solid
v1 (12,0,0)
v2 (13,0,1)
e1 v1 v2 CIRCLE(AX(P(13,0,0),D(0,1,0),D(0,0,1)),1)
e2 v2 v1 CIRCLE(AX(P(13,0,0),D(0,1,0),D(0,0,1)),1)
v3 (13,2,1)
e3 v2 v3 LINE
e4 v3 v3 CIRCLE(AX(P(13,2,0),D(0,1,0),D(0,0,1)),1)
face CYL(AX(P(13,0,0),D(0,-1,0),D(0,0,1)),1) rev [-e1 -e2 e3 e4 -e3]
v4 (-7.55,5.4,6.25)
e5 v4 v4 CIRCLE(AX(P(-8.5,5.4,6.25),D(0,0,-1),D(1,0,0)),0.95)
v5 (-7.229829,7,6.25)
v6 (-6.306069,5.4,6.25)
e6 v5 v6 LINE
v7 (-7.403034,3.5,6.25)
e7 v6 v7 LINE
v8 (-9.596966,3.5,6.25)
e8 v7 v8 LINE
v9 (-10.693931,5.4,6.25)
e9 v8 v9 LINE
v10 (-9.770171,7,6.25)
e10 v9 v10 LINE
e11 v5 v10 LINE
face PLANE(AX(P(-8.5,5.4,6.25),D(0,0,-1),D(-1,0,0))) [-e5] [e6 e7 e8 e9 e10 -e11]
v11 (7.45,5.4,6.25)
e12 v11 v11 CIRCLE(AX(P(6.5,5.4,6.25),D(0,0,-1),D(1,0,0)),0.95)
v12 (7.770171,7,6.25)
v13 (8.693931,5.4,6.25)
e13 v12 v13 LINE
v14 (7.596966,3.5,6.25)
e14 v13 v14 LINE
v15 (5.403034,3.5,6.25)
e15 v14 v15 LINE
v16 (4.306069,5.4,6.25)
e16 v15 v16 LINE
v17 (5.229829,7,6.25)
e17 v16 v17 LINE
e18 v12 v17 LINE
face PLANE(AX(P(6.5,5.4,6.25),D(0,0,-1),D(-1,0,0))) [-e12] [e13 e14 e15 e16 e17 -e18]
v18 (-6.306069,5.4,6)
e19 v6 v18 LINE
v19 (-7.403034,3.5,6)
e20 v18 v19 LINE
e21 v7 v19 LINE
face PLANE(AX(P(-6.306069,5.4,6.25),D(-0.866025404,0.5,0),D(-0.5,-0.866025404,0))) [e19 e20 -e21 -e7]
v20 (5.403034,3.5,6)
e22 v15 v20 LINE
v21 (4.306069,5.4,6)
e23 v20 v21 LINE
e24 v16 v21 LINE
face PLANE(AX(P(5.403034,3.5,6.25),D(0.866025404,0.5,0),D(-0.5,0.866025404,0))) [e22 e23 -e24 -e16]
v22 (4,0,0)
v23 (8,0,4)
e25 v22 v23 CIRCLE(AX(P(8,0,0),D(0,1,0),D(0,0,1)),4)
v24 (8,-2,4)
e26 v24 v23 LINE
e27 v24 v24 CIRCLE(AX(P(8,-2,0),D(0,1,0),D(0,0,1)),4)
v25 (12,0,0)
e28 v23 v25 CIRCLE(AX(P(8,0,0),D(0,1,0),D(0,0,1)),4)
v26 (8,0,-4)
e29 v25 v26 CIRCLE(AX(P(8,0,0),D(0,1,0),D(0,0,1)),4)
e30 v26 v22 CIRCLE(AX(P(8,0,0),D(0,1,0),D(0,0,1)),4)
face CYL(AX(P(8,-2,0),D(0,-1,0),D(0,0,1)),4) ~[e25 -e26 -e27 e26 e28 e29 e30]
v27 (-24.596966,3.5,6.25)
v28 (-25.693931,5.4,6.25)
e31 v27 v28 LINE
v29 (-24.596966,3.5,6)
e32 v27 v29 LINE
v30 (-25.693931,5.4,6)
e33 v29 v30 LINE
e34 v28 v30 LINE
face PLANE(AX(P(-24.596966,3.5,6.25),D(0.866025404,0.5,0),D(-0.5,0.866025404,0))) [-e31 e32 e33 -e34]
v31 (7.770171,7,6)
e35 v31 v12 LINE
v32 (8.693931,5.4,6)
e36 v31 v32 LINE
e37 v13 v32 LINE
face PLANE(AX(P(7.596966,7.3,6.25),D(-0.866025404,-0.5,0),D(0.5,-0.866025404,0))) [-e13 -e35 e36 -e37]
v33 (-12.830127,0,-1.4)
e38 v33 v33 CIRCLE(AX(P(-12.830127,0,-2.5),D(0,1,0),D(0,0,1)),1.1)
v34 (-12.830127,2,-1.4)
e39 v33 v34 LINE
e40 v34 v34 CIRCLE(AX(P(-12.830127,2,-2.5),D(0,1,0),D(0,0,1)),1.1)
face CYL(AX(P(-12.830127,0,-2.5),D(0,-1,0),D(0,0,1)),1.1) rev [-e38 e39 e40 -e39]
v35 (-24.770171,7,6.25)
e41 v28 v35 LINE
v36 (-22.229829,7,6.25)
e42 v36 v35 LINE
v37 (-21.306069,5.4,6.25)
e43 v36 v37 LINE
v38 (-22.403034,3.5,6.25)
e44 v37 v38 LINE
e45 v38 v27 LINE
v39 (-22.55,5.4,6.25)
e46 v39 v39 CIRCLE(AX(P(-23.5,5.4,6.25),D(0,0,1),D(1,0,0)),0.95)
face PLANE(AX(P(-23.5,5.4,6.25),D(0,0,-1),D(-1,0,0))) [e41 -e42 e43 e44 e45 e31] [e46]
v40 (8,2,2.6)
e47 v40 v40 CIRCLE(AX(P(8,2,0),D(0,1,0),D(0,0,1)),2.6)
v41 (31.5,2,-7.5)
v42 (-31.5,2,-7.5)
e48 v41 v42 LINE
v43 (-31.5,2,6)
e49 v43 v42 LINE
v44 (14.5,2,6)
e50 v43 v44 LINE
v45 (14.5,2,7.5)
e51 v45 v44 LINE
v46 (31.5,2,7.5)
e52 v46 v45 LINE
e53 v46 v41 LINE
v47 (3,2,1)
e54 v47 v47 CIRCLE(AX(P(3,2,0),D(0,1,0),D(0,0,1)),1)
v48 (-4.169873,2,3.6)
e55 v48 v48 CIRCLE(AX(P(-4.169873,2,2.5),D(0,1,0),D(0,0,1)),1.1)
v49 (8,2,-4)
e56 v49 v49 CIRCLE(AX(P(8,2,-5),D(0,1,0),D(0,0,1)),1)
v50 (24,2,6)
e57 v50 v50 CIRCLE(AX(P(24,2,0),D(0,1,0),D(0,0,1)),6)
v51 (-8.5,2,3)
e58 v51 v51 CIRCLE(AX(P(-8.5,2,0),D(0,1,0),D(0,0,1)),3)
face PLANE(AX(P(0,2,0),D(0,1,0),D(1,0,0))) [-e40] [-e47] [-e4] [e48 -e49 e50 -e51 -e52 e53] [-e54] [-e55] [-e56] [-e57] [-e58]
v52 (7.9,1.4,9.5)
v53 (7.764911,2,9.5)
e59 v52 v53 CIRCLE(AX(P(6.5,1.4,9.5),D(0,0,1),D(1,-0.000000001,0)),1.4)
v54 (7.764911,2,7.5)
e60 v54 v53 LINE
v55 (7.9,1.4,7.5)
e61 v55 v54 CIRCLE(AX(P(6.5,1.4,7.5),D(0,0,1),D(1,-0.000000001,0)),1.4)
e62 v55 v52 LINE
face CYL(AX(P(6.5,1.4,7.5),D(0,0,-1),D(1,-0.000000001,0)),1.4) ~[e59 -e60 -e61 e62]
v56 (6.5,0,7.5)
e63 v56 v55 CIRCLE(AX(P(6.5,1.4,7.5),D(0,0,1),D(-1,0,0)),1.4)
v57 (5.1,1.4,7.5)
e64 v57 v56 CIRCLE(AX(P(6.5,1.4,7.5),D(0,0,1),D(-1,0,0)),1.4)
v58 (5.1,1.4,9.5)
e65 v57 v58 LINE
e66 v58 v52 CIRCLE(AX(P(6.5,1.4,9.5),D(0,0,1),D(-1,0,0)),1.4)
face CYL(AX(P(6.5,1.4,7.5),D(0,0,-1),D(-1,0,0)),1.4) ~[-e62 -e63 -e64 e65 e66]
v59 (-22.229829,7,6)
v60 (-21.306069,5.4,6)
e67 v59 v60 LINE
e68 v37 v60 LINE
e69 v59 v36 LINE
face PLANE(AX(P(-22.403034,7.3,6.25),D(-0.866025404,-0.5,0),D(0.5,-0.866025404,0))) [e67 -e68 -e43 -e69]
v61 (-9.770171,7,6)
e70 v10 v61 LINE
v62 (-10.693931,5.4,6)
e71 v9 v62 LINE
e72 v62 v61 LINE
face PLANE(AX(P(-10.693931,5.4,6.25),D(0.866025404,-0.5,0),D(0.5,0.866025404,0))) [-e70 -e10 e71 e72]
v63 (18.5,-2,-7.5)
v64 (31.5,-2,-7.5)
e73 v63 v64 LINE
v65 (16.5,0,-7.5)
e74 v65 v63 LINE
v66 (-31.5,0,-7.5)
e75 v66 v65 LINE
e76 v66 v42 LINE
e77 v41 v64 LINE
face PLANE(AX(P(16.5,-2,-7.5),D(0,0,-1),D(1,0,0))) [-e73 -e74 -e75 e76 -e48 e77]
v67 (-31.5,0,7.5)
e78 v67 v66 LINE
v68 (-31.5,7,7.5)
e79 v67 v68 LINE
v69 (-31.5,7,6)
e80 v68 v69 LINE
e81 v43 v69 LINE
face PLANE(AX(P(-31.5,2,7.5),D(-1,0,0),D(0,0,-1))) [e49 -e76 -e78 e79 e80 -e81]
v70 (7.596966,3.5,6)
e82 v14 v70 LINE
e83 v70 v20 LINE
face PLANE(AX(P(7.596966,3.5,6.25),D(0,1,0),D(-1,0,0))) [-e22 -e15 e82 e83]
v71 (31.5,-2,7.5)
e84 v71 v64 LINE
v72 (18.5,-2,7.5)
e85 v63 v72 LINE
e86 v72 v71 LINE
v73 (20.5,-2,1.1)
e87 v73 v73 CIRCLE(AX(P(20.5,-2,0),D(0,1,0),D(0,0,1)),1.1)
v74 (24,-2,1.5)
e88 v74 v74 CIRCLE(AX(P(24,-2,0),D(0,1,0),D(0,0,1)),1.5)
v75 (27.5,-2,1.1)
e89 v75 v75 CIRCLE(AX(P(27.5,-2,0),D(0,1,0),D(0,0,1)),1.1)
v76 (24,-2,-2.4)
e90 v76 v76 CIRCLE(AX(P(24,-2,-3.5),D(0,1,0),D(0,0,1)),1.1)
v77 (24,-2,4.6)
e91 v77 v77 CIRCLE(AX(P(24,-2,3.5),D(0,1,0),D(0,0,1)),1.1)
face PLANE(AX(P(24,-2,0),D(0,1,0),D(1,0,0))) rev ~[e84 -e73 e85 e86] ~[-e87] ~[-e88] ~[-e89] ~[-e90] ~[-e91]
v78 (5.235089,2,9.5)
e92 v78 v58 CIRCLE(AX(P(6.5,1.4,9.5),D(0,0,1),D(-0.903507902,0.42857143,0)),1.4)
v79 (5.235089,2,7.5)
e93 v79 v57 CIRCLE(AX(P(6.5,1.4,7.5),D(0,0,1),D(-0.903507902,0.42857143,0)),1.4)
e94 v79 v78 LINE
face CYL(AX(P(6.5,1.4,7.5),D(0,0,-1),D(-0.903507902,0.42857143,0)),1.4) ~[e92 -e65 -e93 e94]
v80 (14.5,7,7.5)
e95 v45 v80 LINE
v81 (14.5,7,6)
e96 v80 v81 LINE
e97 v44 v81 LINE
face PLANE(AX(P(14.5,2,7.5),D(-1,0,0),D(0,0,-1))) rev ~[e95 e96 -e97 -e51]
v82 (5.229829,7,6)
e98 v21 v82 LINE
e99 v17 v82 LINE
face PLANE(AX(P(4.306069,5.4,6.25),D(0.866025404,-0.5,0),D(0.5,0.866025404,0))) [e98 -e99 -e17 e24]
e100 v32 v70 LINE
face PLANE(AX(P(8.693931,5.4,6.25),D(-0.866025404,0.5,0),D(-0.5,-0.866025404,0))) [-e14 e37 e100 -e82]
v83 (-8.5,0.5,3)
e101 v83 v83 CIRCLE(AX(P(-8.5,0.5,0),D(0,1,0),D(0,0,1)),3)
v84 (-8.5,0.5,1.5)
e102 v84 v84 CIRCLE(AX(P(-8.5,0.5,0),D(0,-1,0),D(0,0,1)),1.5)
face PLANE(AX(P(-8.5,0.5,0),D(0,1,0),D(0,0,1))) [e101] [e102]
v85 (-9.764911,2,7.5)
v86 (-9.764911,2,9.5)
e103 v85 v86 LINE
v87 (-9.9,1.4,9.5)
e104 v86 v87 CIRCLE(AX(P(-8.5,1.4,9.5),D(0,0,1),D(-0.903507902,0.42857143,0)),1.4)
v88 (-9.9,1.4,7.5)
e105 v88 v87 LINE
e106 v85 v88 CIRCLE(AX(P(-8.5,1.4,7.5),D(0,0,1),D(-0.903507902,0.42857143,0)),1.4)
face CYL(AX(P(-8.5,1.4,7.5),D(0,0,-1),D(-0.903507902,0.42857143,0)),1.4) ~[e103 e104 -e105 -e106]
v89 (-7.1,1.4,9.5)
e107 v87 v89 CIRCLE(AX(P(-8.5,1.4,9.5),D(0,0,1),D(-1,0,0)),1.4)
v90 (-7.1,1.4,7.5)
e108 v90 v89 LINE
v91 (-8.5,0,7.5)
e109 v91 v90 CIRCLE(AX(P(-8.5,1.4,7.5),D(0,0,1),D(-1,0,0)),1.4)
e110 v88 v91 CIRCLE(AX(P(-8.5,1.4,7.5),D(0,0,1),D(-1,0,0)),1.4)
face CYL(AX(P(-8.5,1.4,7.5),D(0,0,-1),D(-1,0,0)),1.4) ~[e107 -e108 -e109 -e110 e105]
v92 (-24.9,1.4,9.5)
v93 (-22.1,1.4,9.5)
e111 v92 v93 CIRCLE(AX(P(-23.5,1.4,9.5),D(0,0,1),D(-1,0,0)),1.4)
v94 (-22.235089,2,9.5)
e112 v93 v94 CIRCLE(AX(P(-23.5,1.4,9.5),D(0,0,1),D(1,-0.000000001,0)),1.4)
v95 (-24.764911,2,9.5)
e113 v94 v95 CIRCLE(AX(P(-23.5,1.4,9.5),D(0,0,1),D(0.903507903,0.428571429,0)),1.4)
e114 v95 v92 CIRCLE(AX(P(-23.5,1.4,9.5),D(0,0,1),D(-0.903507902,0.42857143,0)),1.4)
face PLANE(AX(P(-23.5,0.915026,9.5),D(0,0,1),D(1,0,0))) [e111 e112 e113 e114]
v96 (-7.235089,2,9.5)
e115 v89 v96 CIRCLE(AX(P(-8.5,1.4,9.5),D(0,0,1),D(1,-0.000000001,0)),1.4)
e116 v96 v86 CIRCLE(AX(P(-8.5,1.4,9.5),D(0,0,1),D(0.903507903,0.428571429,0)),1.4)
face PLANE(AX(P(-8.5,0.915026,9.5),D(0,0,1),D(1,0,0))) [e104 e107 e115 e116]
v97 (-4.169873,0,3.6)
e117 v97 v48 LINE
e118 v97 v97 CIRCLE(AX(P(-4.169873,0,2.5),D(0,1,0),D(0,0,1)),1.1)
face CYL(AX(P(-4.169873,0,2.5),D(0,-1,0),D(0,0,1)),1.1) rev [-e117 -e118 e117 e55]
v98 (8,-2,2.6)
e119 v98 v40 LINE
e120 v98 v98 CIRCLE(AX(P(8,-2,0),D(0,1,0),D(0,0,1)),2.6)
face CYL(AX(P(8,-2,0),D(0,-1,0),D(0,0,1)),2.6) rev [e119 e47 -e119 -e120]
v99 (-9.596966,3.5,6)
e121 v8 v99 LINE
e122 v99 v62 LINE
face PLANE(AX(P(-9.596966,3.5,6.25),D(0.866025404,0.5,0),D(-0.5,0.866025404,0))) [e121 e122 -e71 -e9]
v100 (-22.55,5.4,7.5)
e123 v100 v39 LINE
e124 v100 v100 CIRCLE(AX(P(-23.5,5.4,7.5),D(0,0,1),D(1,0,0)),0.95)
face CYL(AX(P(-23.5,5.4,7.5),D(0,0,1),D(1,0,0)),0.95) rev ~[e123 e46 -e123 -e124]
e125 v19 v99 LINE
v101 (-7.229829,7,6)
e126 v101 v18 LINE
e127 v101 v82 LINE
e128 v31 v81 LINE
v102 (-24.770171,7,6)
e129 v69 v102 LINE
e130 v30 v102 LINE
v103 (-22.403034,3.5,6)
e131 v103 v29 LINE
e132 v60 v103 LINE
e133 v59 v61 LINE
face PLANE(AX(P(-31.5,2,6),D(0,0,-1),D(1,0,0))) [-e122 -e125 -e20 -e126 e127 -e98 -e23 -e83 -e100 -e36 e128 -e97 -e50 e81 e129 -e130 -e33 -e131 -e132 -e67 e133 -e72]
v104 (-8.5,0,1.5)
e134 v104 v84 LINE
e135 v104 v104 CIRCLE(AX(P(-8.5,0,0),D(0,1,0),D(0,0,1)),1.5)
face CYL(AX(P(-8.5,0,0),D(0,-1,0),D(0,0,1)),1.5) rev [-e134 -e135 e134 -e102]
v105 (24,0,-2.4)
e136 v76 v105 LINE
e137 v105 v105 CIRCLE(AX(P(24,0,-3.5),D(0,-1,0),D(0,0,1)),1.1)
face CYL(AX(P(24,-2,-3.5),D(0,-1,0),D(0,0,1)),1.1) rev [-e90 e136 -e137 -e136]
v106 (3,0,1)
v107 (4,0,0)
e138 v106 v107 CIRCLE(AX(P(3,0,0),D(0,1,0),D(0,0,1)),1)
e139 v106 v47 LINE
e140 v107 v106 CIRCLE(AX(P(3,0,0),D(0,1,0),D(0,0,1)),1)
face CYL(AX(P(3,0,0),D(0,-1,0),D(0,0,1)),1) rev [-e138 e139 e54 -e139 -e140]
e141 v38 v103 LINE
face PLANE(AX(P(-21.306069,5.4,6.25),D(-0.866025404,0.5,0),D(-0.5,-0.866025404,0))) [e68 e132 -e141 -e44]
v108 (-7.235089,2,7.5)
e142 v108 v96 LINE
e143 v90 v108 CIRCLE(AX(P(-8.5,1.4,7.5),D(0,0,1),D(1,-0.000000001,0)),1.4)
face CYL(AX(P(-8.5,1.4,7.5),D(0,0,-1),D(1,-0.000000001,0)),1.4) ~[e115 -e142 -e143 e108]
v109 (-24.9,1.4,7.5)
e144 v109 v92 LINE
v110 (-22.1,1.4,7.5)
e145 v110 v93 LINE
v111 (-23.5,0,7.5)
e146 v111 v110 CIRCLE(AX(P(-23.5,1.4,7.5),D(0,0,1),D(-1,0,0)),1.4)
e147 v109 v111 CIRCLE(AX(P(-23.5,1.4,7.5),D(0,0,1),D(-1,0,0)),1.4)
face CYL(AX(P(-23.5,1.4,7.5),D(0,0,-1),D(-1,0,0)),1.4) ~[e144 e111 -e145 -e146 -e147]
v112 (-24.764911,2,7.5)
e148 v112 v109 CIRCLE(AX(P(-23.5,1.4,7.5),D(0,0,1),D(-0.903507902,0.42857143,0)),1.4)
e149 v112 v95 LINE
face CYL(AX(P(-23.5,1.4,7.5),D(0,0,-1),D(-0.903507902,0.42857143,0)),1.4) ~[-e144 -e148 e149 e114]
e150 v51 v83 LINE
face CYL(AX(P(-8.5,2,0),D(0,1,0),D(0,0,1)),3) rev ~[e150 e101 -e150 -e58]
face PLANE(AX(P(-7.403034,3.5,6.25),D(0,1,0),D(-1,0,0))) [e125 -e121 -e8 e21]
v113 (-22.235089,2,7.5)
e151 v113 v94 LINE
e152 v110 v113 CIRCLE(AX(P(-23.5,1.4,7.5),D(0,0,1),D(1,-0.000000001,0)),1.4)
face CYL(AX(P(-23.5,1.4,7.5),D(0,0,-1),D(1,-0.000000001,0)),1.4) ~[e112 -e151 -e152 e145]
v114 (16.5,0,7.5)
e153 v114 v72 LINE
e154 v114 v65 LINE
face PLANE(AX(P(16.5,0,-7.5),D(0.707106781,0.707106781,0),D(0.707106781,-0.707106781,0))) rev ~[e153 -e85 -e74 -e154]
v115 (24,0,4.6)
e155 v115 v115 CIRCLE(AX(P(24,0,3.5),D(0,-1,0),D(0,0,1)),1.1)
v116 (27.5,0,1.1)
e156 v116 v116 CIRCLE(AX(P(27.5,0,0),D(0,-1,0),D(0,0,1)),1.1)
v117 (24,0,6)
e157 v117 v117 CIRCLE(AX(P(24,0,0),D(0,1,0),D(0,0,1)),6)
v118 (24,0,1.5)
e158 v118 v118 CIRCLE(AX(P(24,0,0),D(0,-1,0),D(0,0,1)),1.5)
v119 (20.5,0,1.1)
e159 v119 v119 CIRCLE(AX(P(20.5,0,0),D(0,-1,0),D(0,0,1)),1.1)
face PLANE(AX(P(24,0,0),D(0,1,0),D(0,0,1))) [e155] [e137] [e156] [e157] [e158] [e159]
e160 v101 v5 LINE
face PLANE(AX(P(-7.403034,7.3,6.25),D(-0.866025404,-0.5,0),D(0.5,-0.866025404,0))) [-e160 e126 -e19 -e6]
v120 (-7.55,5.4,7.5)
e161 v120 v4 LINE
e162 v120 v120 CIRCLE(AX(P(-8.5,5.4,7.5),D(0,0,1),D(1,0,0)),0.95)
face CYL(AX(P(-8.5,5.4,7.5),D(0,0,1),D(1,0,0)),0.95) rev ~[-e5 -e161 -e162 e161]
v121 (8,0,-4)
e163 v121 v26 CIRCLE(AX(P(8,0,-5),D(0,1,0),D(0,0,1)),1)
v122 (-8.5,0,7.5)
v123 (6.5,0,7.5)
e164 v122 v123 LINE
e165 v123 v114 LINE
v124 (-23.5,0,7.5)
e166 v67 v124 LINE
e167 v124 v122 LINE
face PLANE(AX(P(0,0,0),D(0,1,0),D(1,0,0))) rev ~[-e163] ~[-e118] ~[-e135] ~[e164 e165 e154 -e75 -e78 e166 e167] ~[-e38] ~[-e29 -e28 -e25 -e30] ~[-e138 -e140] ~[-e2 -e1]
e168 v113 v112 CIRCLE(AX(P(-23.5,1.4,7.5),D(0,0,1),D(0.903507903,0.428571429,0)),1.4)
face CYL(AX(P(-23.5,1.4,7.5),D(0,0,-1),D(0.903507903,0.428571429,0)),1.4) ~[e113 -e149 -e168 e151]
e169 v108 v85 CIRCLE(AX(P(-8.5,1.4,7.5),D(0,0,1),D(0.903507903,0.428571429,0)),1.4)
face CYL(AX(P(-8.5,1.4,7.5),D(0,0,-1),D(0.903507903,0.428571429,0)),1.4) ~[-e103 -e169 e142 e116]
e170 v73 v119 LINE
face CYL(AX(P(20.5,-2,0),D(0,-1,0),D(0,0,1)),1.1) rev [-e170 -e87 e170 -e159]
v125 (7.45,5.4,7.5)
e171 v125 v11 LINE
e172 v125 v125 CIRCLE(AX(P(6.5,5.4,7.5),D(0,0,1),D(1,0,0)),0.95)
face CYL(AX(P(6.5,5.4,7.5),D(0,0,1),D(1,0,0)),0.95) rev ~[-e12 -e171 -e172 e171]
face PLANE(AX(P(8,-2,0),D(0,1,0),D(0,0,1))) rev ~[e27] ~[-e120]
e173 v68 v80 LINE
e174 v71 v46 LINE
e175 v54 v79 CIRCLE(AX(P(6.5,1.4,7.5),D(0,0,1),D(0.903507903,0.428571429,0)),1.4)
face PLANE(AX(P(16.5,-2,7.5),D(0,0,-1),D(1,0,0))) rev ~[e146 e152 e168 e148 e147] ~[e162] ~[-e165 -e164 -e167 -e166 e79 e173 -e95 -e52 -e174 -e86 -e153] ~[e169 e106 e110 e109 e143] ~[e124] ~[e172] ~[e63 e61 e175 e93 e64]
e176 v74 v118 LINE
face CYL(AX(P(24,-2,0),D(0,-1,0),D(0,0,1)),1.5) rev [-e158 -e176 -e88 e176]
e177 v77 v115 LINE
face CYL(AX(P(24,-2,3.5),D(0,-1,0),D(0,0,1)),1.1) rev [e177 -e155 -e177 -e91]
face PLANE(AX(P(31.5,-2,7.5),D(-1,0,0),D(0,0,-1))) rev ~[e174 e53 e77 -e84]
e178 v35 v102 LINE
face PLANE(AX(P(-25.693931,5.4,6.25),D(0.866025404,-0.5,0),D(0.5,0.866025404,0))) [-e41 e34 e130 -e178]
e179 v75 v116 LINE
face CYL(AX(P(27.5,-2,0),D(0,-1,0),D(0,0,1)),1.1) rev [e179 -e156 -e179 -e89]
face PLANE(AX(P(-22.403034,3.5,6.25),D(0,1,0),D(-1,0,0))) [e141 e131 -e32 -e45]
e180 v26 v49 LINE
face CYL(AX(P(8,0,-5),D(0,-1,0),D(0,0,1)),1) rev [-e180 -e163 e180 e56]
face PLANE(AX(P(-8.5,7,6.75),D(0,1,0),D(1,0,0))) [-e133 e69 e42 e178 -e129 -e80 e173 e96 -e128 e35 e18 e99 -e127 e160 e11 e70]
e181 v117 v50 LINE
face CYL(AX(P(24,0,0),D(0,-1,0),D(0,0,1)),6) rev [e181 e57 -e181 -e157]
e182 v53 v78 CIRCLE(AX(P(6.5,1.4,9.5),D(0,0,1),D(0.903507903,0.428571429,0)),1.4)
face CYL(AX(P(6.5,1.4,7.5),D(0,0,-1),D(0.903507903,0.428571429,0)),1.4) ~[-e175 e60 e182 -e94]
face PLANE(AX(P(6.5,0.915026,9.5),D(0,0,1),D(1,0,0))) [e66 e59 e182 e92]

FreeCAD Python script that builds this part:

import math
import FreeCAD as App
import Part
import Sketcher
from FreeCAD import Vector
Q = App.Units.Quantity


def add_polygon(sketch, points):
    """Adds a closed chain of lines whose ends are joined by coincident constraints."""
    first, n = sketch.GeometryCount, len(points)
    for a, b in zip(points, points[1:] + points[:1]):
        sketch.addGeometry(Part.LineSegment(App.Vector(*a, 0), App.Vector(*b, 0)), False)
    for i in range(n):
        sketch.addConstraint(Sketcher.Constraint("Coincident", first + i, 2, first + (i + 1) % n, 1))

doc = App.newDocument("Part")
body = doc.addObject("PartDesign::Body", "Body")

# Sketch on XZ plane
sketch1 = doc.addObject("Sketcher::SketchObject", "Sketch")
body.addObject(sketch1)
sketch1.AttachmentSupport = (doc.XZ_Plane, [""])
sketch1.MapMode = "FlatFace"
add_polygon(sketch1, [(-31.5, -7.5), (-31.5, 7.5), (31.5, 7.5), (31.5, -7.5)])  # lines 0-3
sketch1.addGeometry(Part.Circle(Vector(-4.2, 2.5, 0), Vector(0, 0, 1), 1.1), False)  # 4
sketch1.addGeometry(Part.Circle(Vector(-8.5, 0, 0), Vector(0, 0, 1), 1.5), False)  # 5
sketch1.addGeometry(Part.Circle(Vector(3, 0, 0), Vector(0, 0, 1), 1), False)  # 6
sketch1.addGeometry(Part.Circle(Vector(24, 3.5, 0), Vector(0, 0, 1), 1.1), False)  # 7
sketch1.addGeometry(Part.Circle(Vector(8, 0, 0), Vector(0, 0, 1), 2.6), False)  # 8
sketch1.addGeometry(Part.Circle(Vector(13, 0, 0), Vector(0, 0, 1), 1), False)  # 9
sketch1.addGeometry(Part.Circle(Vector(20.5, 0, 0), Vector(0, 0, 1), 1.1), False)  # 10
sketch1.addGeometry(Part.Circle(Vector(24, 0, 0), Vector(0, 0, 1), 1.5), False)  # 11
sketch1.addGeometry(Part.Circle(Vector(27.5, 0, 0), Vector(0, 0, 1), 1.1), False)  # 12
sketch1.addGeometry(Part.Circle(Vector(-12.8, -2.5, 0), Vector(0, 0, 1), 1.1), False)  # 13
sketch1.addGeometry(Part.Circle(Vector(8, -5, 0), Vector(0, 0, 1), 1), False)  # 14
sketch1.addGeometry(Part.Circle(Vector(24, -3.5, 0), Vector(0, 0, 1), 1.1), False)  # 15
sketch1.addConstraint(Sketcher.Constraint("Vertical", 0))
sketch1.addConstraint(Sketcher.Constraint("Horizontal", 1))
sketch1.addConstraint(Sketcher.Constraint("Vertical", 2))
sketch1.addConstraint(Sketcher.Constraint("Horizontal", 3))
sketch1.addConstraint(Sketcher.Constraint("Equal", 4, 7))
sketch1.addConstraint(Sketcher.Constraint("Equal", 6, 9))
sketch1.addConstraint(Sketcher.Constraint("Equal", 7, 10))
sketch1.addConstraint(Sketcher.Constraint("Equal", 5, 11))
sketch1.addConstraint(Sketcher.Constraint("Equal", 10, 12))
sketch1.addConstraint(Sketcher.Constraint("Equal", 12, 13))
sketch1.addConstraint(Sketcher.Constraint("Equal", 9, 14))
sketch1.addConstraint(Sketcher.Constraint("Equal", 13, 15))
sketch1.addConstraint(Sketcher.Constraint("Symmetric", 0, 2, 2, 2, -1, 1))
sketch1.addConstraint(Sketcher.Constraint("Symmetric", 7, 3, 15, 3, -1))
sketch1.addConstraint(Sketcher.Constraint("PointOnObject", 5, 3, -1))
sketch1.addConstraint(Sketcher.Constraint("PointOnObject", 6, 3, -1))
sketch1.addConstraint(Sketcher.Constraint("PointOnObject", 8, 3, -1))
sketch1.addConstraint(Sketcher.Constraint("PointOnObject", 9, 3, -1))
sketch1.addConstraint(Sketcher.Constraint("PointOnObject", 10, 3, -1))
sketch1.addConstraint(Sketcher.Constraint("PointOnObject", 11, 3, -1))
sketch1.addConstraint(Sketcher.Constraint("PointOnObject", 12, 3, -1))
sketch1.addConstraint(Sketcher.Constraint("Vertical", 7, 3, 11, 3))
sketch1.addConstraint(Sketcher.Constraint("Vertical", 8, 3, 14, 3))
sketch1.addConstraint(Sketcher.Constraint("Diameter", 5, 3.0))
sketch1.addConstraint(Sketcher.Constraint("Diameter", 6, 2.0))
sketch1.addConstraint(Sketcher.Constraint("Diameter", 4, 2.2))
sketch1.addConstraint(Sketcher.Constraint("Diameter", 8, 5.2))
sketch1.addConstraint(Sketcher.Constraint("DistanceX", 1, 1, 1, 2, 63.0))
sketch1.addConstraint(Sketcher.Constraint("DistanceY", 0, 1, 0, 2, 15.0))
sketch1.addConstraint(Sketcher.Constraint("DistanceX", -1, 1, 6, 3, 3.0))
sketch1.addConstraint(Sketcher.Constraint("DistanceX", -1, 1, 7, 3, 24.0))
sketch1.addConstraint(Sketcher.Constraint("DistanceX", -1, 1, 8, 3, 8.0))
sketch1.addConstraint(Sketcher.Constraint("DistanceX", -1, 1, 9, 3, 13.0))
sketch1.addConstraint(Sketcher.Constraint("DistanceY", 14, 3, -1, 1, 5.0))
sketch1.addConstraint(Sketcher.Constraint("DistanceY", 4, 3, 7, 3, 1.0))
sketch1.addConstraint(Sketcher.Constraint("DistanceX", 10, 3, 12, 3, 7.0))
sketch1.addConstraint(Sketcher.Constraint("DistanceY", 13, 3, 4, 3, 5.0))
sketch1.addConstraint(Sketcher.Constraint("DistanceY", 15, 3, 7, 3, 7.0))
sketch1.addConstraint(Sketcher.Constraint("DistanceX", 0, 2, 5, 3, 23.0))
sketch1.addConstraint(Sketcher.Constraint("DistanceX", 12, 3, 1, 2, 4.0))
sketch1.addConstraint(Sketcher.Constraint("DistanceX", 4, 3, -1, 1, 4.169873))
sketch1.addConstraint(Sketcher.Constraint("DistanceX", 13, 3, -1, 1, 12.830127))
pad1 = doc.addObject("PartDesign::Pad", "Pad")
body.addObject(pad1)
pad1.Profile = sketch1
pad1.Length = 2
pad1.Reversed = True

# Sketch on XY plane
sketch2 = doc.addObject("Sketcher::SketchObject", "Sketch001")
body.addObject(sketch2)
sketch2.AttachmentSupport = (doc.XY_Plane, [""])
sketch2.MapMode = "FlatFace"
sketch2.AttachmentOffset = App.Placement(Vector(0, 0, 7.5), App.Rotation())
sketch2.addGeometry(Part.ArcOfCircle(Part.Circle(Vector(-23.5, 1.4, 0), Vector(0, 0, 1), 1.4), math.radians(180), math.radians(360)), False)
sketch2.addGeometry(Part.ArcOfCircle(Part.Circle(Vector(-23.5, 1.4, 0), Vector(0, 0, 1), 1.4), math.radians(0), math.radians(25)), False)
sketch2.addGeometry(Part.ArcOfCircle(Part.Circle(Vector(-23.5, 1.4, 0), Vector(0, 0, 1), 1.4), math.radians(25), math.radians(155)), False)
sketch2.addGeometry(Part.ArcOfCircle(Part.Circle(Vector(-23.5, 1.4, 0), Vector(0, 0, 1), 1.4), math.radians(155), math.radians(180)), False)
sketch2.addGeometry(Part.ArcOfCircle(Part.Circle(Vector(-8.5, 1.4, 0), Vector(0, 0, 1), 1.4), math.radians(180), math.radians(360)), False)
sketch2.addGeometry(Part.ArcOfCircle(Part.Circle(Vector(-8.5, 1.4, 0), Vector(0, 0, 1), 1.4), math.radians(0), math.radians(25)), False)
sketch2.addGeometry(Part.ArcOfCircle(Part.Circle(Vector(-8.5, 1.4, 0), Vector(0, 0, 1), 1.4), math.radians(25), math.radians(155)), False)
sketch2.addGeometry(Part.ArcOfCircle(Part.Circle(Vector(-8.5, 1.4, 0), Vector(0, 0, 1), 1.4), math.radians(155), math.radians(180)), False)
sketch2.addGeometry(Part.ArcOfCircle(Part.Circle(Vector(6.5, 1.4, 0), Vector(0, 0, 1), 1.4), math.radians(180), math.radians(360)), False)
sketch2.addGeometry(Part.ArcOfCircle(Part.Circle(Vector(6.5, 1.4, 0), Vector(0, 0, 1), 1.4), math.radians(0), math.radians(25)), False)
sketch2.addGeometry(Part.ArcOfCircle(Part.Circle(Vector(6.5, 1.4, 0), Vector(0, 0, 1), 1.4), math.radians(25), math.radians(155)), False)
sketch2.addGeometry(Part.ArcOfCircle(Part.Circle(Vector(6.5, 1.4, 0), Vector(0, 0, 1), 1.4), math.radians(155), math.radians(180)), False)
sketch2.addConstraint(Sketcher.Constraint("Tangent", 0, 2, 1, 1))
sketch2.addConstraint(Sketcher.Constraint("Tangent", 1, 2, 2, 1))
sketch2.addConstraint(Sketcher.Constraint("Tangent", 2, 2, 3, 1))
sketch2.addConstraint(Sketcher.Constraint("Tangent", 3, 2, 0, 1))
sketch2.addConstraint(Sketcher.Constraint("Tangent", 4, 2, 5, 1))
sketch2.addConstraint(Sketcher.Constraint("Tangent", 5, 2, 6, 1))
sketch2.addConstraint(Sketcher.Constraint("Tangent", 6, 2, 7, 1))
sketch2.addConstraint(Sketcher.Constraint("Tangent", 7, 2, 4, 1))
sketch2.addConstraint(Sketcher.Constraint("Tangent", 8, 2, 9, 1))
sketch2.addConstraint(Sketcher.Constraint("Tangent", 9, 2, 10, 1))
sketch2.addConstraint(Sketcher.Constraint("Tangent", 10, 2, 11, 1))
sketch2.addConstraint(Sketcher.Constraint("Tangent", 11, 2, 8, 1))
sketch2.addConstraint(Sketcher.Constraint("Equal", 0, 1))
sketch2.addConstraint(Sketcher.Constraint("Equal", 3, 4))
sketch2.addConstraint(Sketcher.Constraint("Equal", 4, 5))
sketch2.addConstraint(Sketcher.Constraint("Equal", 7, 8))
sketch2.addConstraint(Sketcher.Constraint("Equal", 8, 9))
sketch2.addConstraint(Sketcher.Constraint("Horizontal", 3, 3, 4, 3))
sketch2.addConstraint(Sketcher.Constraint("Horizontal", 7, 3, 8, 3))
sketch2.addConstraint(Sketcher.Constraint("Horizontal", 11, 3, 0, 2))
sketch2.addConstraint(Sketcher.Constraint("Horizontal", 1, 2, 2, 2))
sketch2.addConstraint(Sketcher.Constraint("Horizontal", 0, 2, 3, 2))
sketch2.addConstraint(Sketcher.Constraint("Horizontal", 3, 2, 4, 2))
sketch2.addConstraint(Sketcher.Constraint("Horizontal", 2, 2, 5, 2))
sketch2.addConstraint(Sketcher.Constraint("Horizontal", 5, 2, 6, 2))
sketch2.addConstraint(Sketcher.Constraint("Horizontal", 4, 2, 7, 2))
sketch2.addConstraint(Sketcher.Constraint("Horizontal", 7, 2, 8, 2))
sketch2.addConstraint(Sketcher.Constraint("Horizontal", 6, 2, 9, 2))
sketch2.addConstraint(Sketcher.Constraint("Horizontal", 9, 2, 10, 2))
sketch2.addConstraint(Sketcher.Constraint("Horizontal", 8, 2, 11, 2))
sketch2.addConstraint(Sketcher.Constraint("Radius", 0, 1.4))
sketch2.addConstraint(Sketcher.Constraint("DistanceY", -1, 1, 1, 2, 2.0))
sketch2.addConstraint(Sketcher.Constraint("DistanceX", 1, 3, 4, 3, 15.0))
sketch2.addConstraint(Sketcher.Constraint("DistanceX", 5, 3, 8, 3, 15.0))
sketch2.addConstraint(Sketcher.Constraint("DistanceX", 0, 3, -1, 1, 23.5))
sketch2.addConstraint(Sketcher.Constraint("DistanceY", -1, 1, 0, 3, 1.4))
pad2 = doc.addObject("PartDesign::Pad", "Pad001")
body.addObject(pad2)
pad2.Profile = sketch2
pad2.Length = 2

# Sketch on XZ plane
sketch3 = doc.addObject("Sketcher::SketchObject", "Sketch002")
body.addObject(sketch3)
sketch3.AttachmentSupport = (doc.XZ_Plane, [""])
sketch3.MapMode = "FlatFace"
sketch3.AttachmentOffset = App.Placement(Vector(0, 0, -2), App.Rotation())
sketch3.addGeometry(Part.Circle(Vector(-8.5, 0, 0), Vector(0, 0, 1), 3), False)
sketch3.addConstraint(Sketcher.Constraint("PointOnObject", 0, 3, -1))
sketch3.addConstraint(Sketcher.Constraint("Diameter", 0, 6.0))
sketch3.addConstraint(Sketcher.Constraint("DistanceX", 0, 3, -1, 1, 8.5))
pocket1 = doc.addObject("PartDesign::Pocket", "Pocket")
body.addObject(pocket1)
pocket1.Profile = sketch3
pocket1.Length = 1.5
pocket1.Reversed = True

# Sketch on XZ plane
sketch4 = doc.addObject("Sketcher::SketchObject", "Sketch003")
body.addObject(sketch4)
sketch4.AttachmentSupport = (doc.XZ_Plane, [""])
sketch4.MapMode = "FlatFace"
sketch4.AttachmentOffset = App.Placement(Vector(0, 0, -2), App.Rotation())
add_polygon(sketch4, [(-31.5, 6), (-31.5, 7.5), (14.5, 7.5), (14.5, 6)])  # lines 0-3
sketch4.addConstraint(Sketcher.Constraint("Vertical", 0))
sketch4.addConstraint(Sketcher.Constraint("Horizontal", 1))
sketch4.addConstraint(Sketcher.Constraint("Vertical", 2))
sketch4.addConstraint(Sketcher.Constraint("Horizontal", 3))
sketch4.addConstraint(Sketcher.Constraint("DistanceX", 1, 1, 1, 2, 46.0))
sketch4.addConstraint(Sketcher.Constraint("DistanceY", 0, 1, 0, 2, 1.5))
sketch4.addConstraint(Sketcher.Constraint("DistanceY", -1, 1, 2, 2, 6.0))
sketch4.addConstraint(Sketcher.Constraint("DistanceX", 0, 2, -1, 1, 31.5))
pad3 = doc.addObject("PartDesign::Pad", "Pad002")
body.addObject(pad3)
pad3.Profile = sketch4
pad3.Length = 5
pad3.Reversed = True

# Sketch on XY plane
sketch5 = doc.addObject("Sketcher::SketchObject", "Sketch004")
body.addObject(sketch5)
sketch5.AttachmentSupport = (doc.XY_Plane, [""])
sketch5.MapMode = "FlatFace"
sketch5.AttachmentOffset = App.Placement(Vector(0, 0, 7.5), App.Rotation())
sketch5.addGeometry(Part.Circle(Vector(-23.5, 5.4, 0), Vector(0, 0, 1), 0.9), False)
sketch5.addGeometry(Part.Circle(Vector(-8.5, 5.4, 0), Vector(0, 0, 1), 0.9), False)
sketch5.addGeometry(Part.Circle(Vector(6.5, 5.4, 0), Vector(0, 0, 1), 0.9), False)
sketch5.addConstraint(Sketcher.Constraint("Equal", 0, 1))
sketch5.addConstraint(Sketcher.Constraint("Equal", 1, 2))
sketch5.addConstraint(Sketcher.Constraint("Horizontal", 0, 3, 1, 3))
sketch5.addConstraint(Sketcher.Constraint("Horizontal", 1, 3, 2, 3))
sketch5.addConstraint(Sketcher.Constraint("Diameter", 0, 1.9))
sketch5.addConstraint(Sketcher.Constraint("DistanceX", 0, 3, 1, 3, 15.0))
sketch5.addConstraint(Sketcher.Constraint("DistanceX", 1, 3, 2, 3, 15.0))
sketch5.addConstraint(Sketcher.Constraint("DistanceX", 0, 3, -1, 1, 23.5))
sketch5.addConstraint(Sketcher.Constraint("DistanceY", -1, 1, 0, 3, 5.4))
pocket2 = doc.addObject("PartDesign::Pocket", "Pocket001")
body.addObject(pocket2)
pocket2.Profile = sketch5
pocket2.Length = 6

# Sketch on XY plane
sketch6 = doc.addObject("Sketcher::SketchObject", "Sketch005")
body.addObject(sketch6)
sketch6.AttachmentSupport = (doc.XY_Plane, [""])
sketch6.MapMode = "FlatFace"
sketch6.AttachmentOffset = App.Placement(Vector(0, 0, 6.25), App.Rotation())
add_polygon(sketch6, [(7.6, 3.5), (5.4, 3.5), (4.3, 5.4), (5.4, 7.3), (7.6, 7.3), (8.7, 5.4)])  # lines 0-5
sketch6.addGeometry(Part.Circle(Vector(6.5, 5.4, 0), Vector(0, 0, 1), 0.9), False)  # 6
add_polygon(sketch6, [(-6.3, 5.4), (-7.4, 3.5), (-9.6, 3.5), (-10.7, 5.4), (-9.6, 7.3), (-7.4, 7.3)])  # lines 7-12
sketch6.addGeometry(Part.Circle(Vector(-8.5, 5.4, 0), Vector(0, 0, 1), 0.9), False)  # 13
add_polygon(sketch6, [(-21.3, 5.4), (-22.4, 3.5), (-24.6, 3.5), (-25.7, 5.4), (-24.6, 7.3), (-22.4, 7.3)])  # lines 14-19
sketch6.addConstraint(Sketcher.Constraint("Horizontal", 0))
sketch6.addConstraint(Sketcher.Constraint("Horizontal", 3))
sketch6.addConstraint(Sketcher.Constraint("Horizontal", 8))
sketch6.addConstraint(Sketcher.Constraint("Horizontal", 11))
sketch6.addConstraint(Sketcher.Constraint("Horizontal", 15))
sketch6.addConstraint(Sketcher.Constraint("Horizontal", 18))
sketch6.addConstraint(Sketcher.Constraint("Equal", 6, 13))
sketch6.addConstraint(Sketcher.Constraint("Parallel", 1, 4))
sketch6.addConstraint(Sketcher.Constraint("Parallel", 2, 5))
sketch6.addConstraint(Sketcher.Constraint("Parallel", 5, 7))
sketch6.addConstraint(Sketcher.Constraint("Parallel", 4, 9))
sketch6.addConstraint(Sketcher.Constraint("Parallel", 7, 10))
sketch6.addConstraint(Sketcher.Constraint("Parallel", 9, 12))
sketch6.addConstraint(Sketcher.Constraint("Parallel", 10, 14))
sketch6.addConstraint(Sketcher.Constraint("Parallel", 12, 16))
sketch6.addConstraint(Sketcher.Constraint("Parallel", 14, 17))
sketch6.addConstraint(Sketcher.Constraint("Parallel", 16, 19))
sketch6.addConstraint(Sketcher.Constraint("Horizontal", 6, 3, 13, 3))
sketch6.addConstraint(Sketcher.Constraint("Horizontal", 13, 3, 1, 2))
sketch6.addConstraint(Sketcher.Constraint("Horizontal", 1, 2, 4, 2))
sketch6.addConstraint(Sketcher.Constraint("Horizontal", 5, 2, 7, 2))
sketch6.addConstraint(Sketcher.Constraint("Horizontal", 4, 2, 9, 2))
sketch6.addConstraint(Sketcher.Constraint("Horizontal", 3, 2, 10, 2))
sketch6.addConstraint(Sketcher.Constraint("Horizontal", 9, 2, 12, 2))
sketch6.addConstraint(Sketcher.Constraint("Horizontal", 8, 2, 14, 2))
sketch6.addConstraint(Sketcher.Constraint("Horizontal", 12, 2, 16, 2))
sketch6.addConstraint(Sketcher.Constraint("Horizontal", 11, 2, 17, 2))
sketch6.addConstraint(Sketcher.Constraint("Horizontal", 16, 2, 19, 2))
sketch6.addConstraint(Sketcher.Constraint("Vertical", 0, 2, 2, 2))
sketch6.addConstraint(Sketcher.Constraint("Vertical", 3, 2, 5, 2))
sketch6.addConstraint(Sketcher.Constraint("Equal", 3, 8))
sketch6.addConstraint(Sketcher.Constraint("Equal", 11, 15))
sketch6.addConstraint(Sketcher.Constraint("Diameter", 6, 1.9))
sketch6.addConstraint(Sketcher.Constraint("Angle", 1, Q("120 deg")))
sketch6.addConstraint(Sketcher.Constraint("DistanceX", 13, 3, 6, 3, 15.0))
sketch6.addConstraint(Sketcher.Constraint("DistanceX", 8, 2, 0, 2, 15.0))
sketch6.addConstraint(Sketcher.Constraint("DistanceX", 14, 2, 7, 2, 15.0))
sketch6.addConstraint(Sketcher.Constraint("DistanceX", -1, 1, 6, 3, 6.5))
sketch6.addConstraint(Sketcher.Constraint("DistanceY", -1, 1, 6, 3, 5.4))
sketch6.addConstraint(Sketcher.Constraint("DistanceY", -1, 1, 0, 2, 3.5))
sketch6.addConstraint(Sketcher.Constraint("DistanceX", 0, 2, 0, 1, 2.193931))
sketch6.addConstraint(Sketcher.Constraint("DistanceX", -1, 1, 1, 2, 4.306069))
pocket3 = doc.addObject("PartDesign::Pocket", "Pocket002")
body.addObject(pocket3)
pocket3.Profile = sketch6
pocket3.Length = 0.25

# Sketch on XZ plane
sketch7 = doc.addObject("Sketcher::SketchObject", "Sketch006")
body.addObject(sketch7)
sketch7.AttachmentSupport = (doc.XZ_Plane, [""])
sketch7.MapMode = "FlatFace"
add_polygon(sketch7, [(16.5, -7.5), (16.5, 7.5), (31.5, 7.5), (31.5, -7.5)])  # lines 0-3
sketch7.addGeometry(Part.Circle(Vector(24, -3.5, 0), Vector(0, 0, 1), 1.1), False)  # 4
sketch7.addGeometry(Part.Circle(Vector(24, 3.5, 0), Vector(0, 0, 1), 1.1), False)  # 5
sketch7.addGeometry(Part.Circle(Vector(20.5, 0, 0), Vector(0, 0, 1), 1.1), False)  # 6
sketch7.addGeometry(Part.Circle(Vector(24, 0, 0), Vector(0, 0, 1), 1.5), False)  # 7
sketch7.addGeometry(Part.Circle(Vector(27.5, 0, 0), Vector(0, 0, 1), 1.1), False)  # 8
sketch7.addConstraint(Sketcher.Constraint("Vertical", 0))
sketch7.addConstraint(Sketcher.Constraint("Horizontal", 1))
sketch7.addConstraint(Sketcher.Constraint("Vertical", 2))
sketch7.addConstraint(Sketcher.Constraint("Horizontal", 3))
sketch7.addConstraint(Sketcher.Constraint("Equal", 4, 5))
sketch7.addConstraint(Sketcher.Constraint("Equal", 5, 6))
sketch7.addConstraint(Sketcher.Constraint("Equal", 6, 8))
sketch7.addConstraint(Sketcher.Constraint("Symmetric", 4, 3, 5, 3, -1))
sketch7.addConstraint(Sketcher.Constraint("PointOnObject", 6, 3, -1))
sketch7.addConstraint(Sketcher.Constraint("PointOnObject", 7, 3, -1))
sketch7.addConstraint(Sketcher.Constraint("PointOnObject", 8, 3, -1))
sketch7.addConstraint(Sketcher.Constraint("Vertical", 5, 3, 7, 3))
sketch7.addConstraint(Sketcher.Constraint("Equal", 3, 0))
sketch7.addConstraint(Sketcher.Constraint("Diameter", 7, 3.0))
sketch7.addConstraint(Sketcher.Constraint("Diameter", 4, 2.2))
sketch7.addConstraint(Sketcher.Constraint("DistanceX", 1, 1, 1, 2, 15.0))
sketch7.addConstraint(Sketcher.Constraint("DistanceX", -1, 1, 4, 3, 24.0))
sketch7.addConstraint(Sketcher.Constraint("DistanceY", 4, 3, 5, 3, 7.0))
sketch7.addConstraint(Sketcher.Constraint("DistanceX", 6, 3, 8, 3, 7.0))
sketch7.addConstraint(Sketcher.Constraint("DistanceY", 5, 3, 0, 2, 4.0))
sketch7.addConstraint(Sketcher.Constraint("DistanceX", 0, 2, 6, 3, 4.0))
sketch7.addConstraint(Sketcher.Constraint("DistanceX", -1, 1, 6, 3, 20.5))
pad4 = doc.addObject("PartDesign::Pad", "Pad003")
body.addObject(pad4)
pad4.Profile = sketch7
pad4.Length = 2
pad4.Reversed = True

# Sketch on XZ plane
sketch8 = doc.addObject("Sketcher::SketchObject", "Sketch007")
body.addObject(sketch8)
sketch8.AttachmentSupport = (doc.XZ_Plane, [""])
sketch8.MapMode = "FlatFace"
sketch8.AttachmentOffset = App.Placement(Vector(0, 0, 2), App.Rotation())
add_polygon(sketch8, [(16.5, -7.5), (16.5, 7.5), (31.5, 7.5), (31.5, -7.5)])  # lines 0-3
sketch8.addGeometry(Part.Circle(Vector(24, -3.5, 0), Vector(0, 0, 1), 1.1), False)  # 4
sketch8.addGeometry(Part.Circle(Vector(24, 3.5, 0), Vector(0, 0, 1), 1.1), False)  # 5
sketch8.addGeometry(Part.Circle(Vector(20.5, 0, 0), Vector(0, 0, 1), 1.1), False)  # 6
sketch8.addGeometry(Part.Circle(Vector(24, 0, 0), Vector(0, 0, 1), 1.5), False)  # 7
sketch8.addGeometry(Part.Circle(Vector(27.5, 0, 0), Vector(0, 0, 1), 1.1), False)  # 8
sketch8.addConstraint(Sketcher.Constraint("Vertical", 0))
sketch8.addConstraint(Sketcher.Constraint("Horizontal", 1))
sketch8.addConstraint(Sketcher.Constraint("Vertical", 2))
sketch8.addConstraint(Sketcher.Constraint("Horizontal", 3))
sketch8.addConstraint(Sketcher.Constraint("Equal", 4, 5))
sketch8.addConstraint(Sketcher.Constraint("Equal", 5, 6))
sketch8.addConstraint(Sketcher.Constraint("Equal", 6, 8))
sketch8.addConstraint(Sketcher.Constraint("Symmetric", 4, 3, 5, 3, -1))
sketch8.addConstraint(Sketcher.Constraint("PointOnObject", 6, 3, -1))
sketch8.addConstraint(Sketcher.Constraint("PointOnObject", 7, 3, -1))
sketch8.addConstraint(Sketcher.Constraint("PointOnObject", 8, 3, -1))
sketch8.addConstraint(Sketcher.Constraint("Vertical", 5, 3, 7, 3))
sketch8.addConstraint(Sketcher.Constraint("Equal", 3, 0))
sketch8.addConstraint(Sketcher.Constraint("Diameter", 7, 3.0))
sketch8.addConstraint(Sketcher.Constraint("Diameter", 4, 2.2))
sketch8.addConstraint(Sketcher.Constraint("DistanceX", 1, 1, 1, 2, 15.0))
sketch8.addConstraint(Sketcher.Constraint("DistanceX", -1, 1, 4, 3, 24.0))
sketch8.addConstraint(Sketcher.Constraint("DistanceY", 4, 3, 5, 3, 7.0))
sketch8.addConstraint(Sketcher.Constraint("DistanceX", 6, 3, 8, 3, 7.0))
sketch8.addConstraint(Sketcher.Constraint("DistanceY", 5, 3, 0, 2, 4.0))
sketch8.addConstraint(Sketcher.Constraint("DistanceX", 0, 2, 6, 3, 4.0))
sketch8.addConstraint(Sketcher.Constraint("DistanceX", -1, 1, 6, 3, 20.5))
pad5 = doc.addObject("PartDesign::Pad", "Pad004")
body.addObject(pad5)
pad5.Profile = sketch8
pad5.Length = 2
pad5.Reversed = True

# Sketch on XZ plane
sketch9 = doc.addObject("Sketcher::SketchObject", "Sketch008")
body.addObject(sketch9)
sketch9.AttachmentSupport = (doc.XZ_Plane, [""])
sketch9.MapMode = "FlatFace"
sketch9.addGeometry(Part.Circle(Vector(24, 0, 0), Vector(0, 0, 1), 6), False)
sketch9.addConstraint(Sketcher.Constraint("PointOnObject", 0, 3, -1))
sketch9.addConstraint(Sketcher.Constraint("Diameter", 0, 12.0))
sketch9.addConstraint(Sketcher.Constraint("DistanceX", -1, 1, 0, 3, 24.0))
pocket4 = doc.addObject("PartDesign::Pocket", "Pocket003")
body.addObject(pocket4)
pocket4.Profile = sketch9
pocket4.Length = 2

# Sketch on XY plane
sketch10 = doc.addObject("Sketcher::SketchObject", "Sketch009")
body.addObject(sketch10)
sketch10.AttachmentSupport = (doc.XY_Plane, [""])
sketch10.MapMode = "FlatFace"
sketch10.AttachmentOffset = App.Placement(Vector(0, 0, -7.5), App.Rotation())
add_polygon(sketch10, [(16.5, 0), (18.5, -2), (16.5, -2)])  # lines 0-2
sketch10.addConstraint(Sketcher.Constraint("Horizontal", 1))
sketch10.addConstraint(Sketcher.Constraint("Vertical", 2))
sketch10.addConstraint(Sketcher.Constraint("PointOnObject", 2, 2, -1))
sketch10.addConstraint(Sketcher.Constraint("Equal", 1, 2))
sketch10.addConstraint(Sketcher.Constraint("DistanceX", 1, 2, 1, 1, 2.0))
sketch10.addConstraint(Sketcher.Constraint("DistanceX", -1, 1, 0, 2, 18.5))
pocket5 = doc.addObject("PartDesign::Pocket", "Pocket004")
body.addObject(pocket5)
pocket5.Profile = sketch10
pocket5.Length = 15
pocket5.Reversed = True

# Sketch on XZ plane
sketch11 = doc.addObject("Sketcher::SketchObject", "Sketch010")
body.addObject(sketch11)
sketch11.AttachmentSupport = (doc.XZ_Plane, [""])
sketch11.MapMode = "FlatFace"
sketch11.AttachmentOffset = App.Placement(Vector(0, 0, 2), App.Rotation())
sketch11.addGeometry(Part.Circle(Vector(8, 0, 0), Vector(0, 0, 1), 4), False)
sketch11.addGeometry(Part.Circle(Vector(8, 0, 0), Vector(0, 0, 1), 2.6), False)
sketch11.addConstraint(Sketcher.Constraint("Coincident", 1, 3, 0, 3))
sketch11.addConstraint(Sketcher.Constraint("PointOnObject", 0, 3, -1))
sketch11.addConstraint(Sketcher.Constraint("Diameter", 0, 8.0))
sketch11.addConstraint(Sketcher.Constraint("Diameter", 1, 5.2))
sketch11.addConstraint(Sketcher.Constraint("DistanceX", -1, 1, 0, 3, 8.0))
pad6 = doc.addObject("PartDesign::Pad", "Pad005")
body.addObject(pad6)
pad6.Profile = sketch11
pad6.Length = 2
pad6.Reversed = True

doc.recompute()
